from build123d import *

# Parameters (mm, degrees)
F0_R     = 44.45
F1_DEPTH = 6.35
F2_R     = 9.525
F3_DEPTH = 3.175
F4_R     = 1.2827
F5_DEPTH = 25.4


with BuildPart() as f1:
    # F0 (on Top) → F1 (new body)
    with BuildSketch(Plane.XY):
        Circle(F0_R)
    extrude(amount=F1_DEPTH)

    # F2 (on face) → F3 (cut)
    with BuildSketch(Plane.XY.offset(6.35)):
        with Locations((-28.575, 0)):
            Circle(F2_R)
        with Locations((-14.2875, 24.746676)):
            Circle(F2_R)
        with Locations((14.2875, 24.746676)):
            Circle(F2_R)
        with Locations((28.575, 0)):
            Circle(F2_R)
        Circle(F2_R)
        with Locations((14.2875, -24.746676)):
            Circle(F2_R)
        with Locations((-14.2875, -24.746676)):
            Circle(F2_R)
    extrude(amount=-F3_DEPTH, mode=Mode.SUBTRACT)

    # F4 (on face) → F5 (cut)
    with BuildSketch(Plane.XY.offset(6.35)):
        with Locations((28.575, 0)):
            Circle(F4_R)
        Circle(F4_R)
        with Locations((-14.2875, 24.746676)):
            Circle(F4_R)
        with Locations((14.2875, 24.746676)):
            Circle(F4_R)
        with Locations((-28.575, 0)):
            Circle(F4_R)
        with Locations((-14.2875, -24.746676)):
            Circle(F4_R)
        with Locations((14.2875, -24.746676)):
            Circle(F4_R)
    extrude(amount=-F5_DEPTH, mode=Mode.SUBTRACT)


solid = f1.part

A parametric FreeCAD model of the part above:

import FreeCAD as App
import Part
import Sketcher
from FreeCAD import Vector
Q = App.Units.Quantity

doc = App.newDocument("Part")
body = doc.addObject("PartDesign::Body", "Body")

sketch1 = body.newObject("Sketcher::SketchObject", "Sketch")
sketch1.AttachmentSupport = (doc.getObject("XY_Plane"), [""])
sketch1.MapMode = "FlatFace"
sketch1.addGeometry(Part.Circle(Vector(0, 0, 0), Vector(0, 0, 1), 44), False)
sketch1.addConstraint([
    Sketcher.Constraint("Coincident", 0, 3, -1, 1),
    Sketcher.Constraint("Diameter", 0, Q("3.5 in")),
])
pad1 = body.newObject("PartDesign::Pad", "Pad")
pad1.Profile = sketch1
pad1.Length = Q("0.25 in")

sketch2 = body.newObject("Sketcher::SketchObject", "Sketch001")
sketch2.AttachmentSupport = (doc.getObject("XY_Plane"), [""])
sketch2.MapMode = "FlatFace"
sketch2.AttachmentOffset = App.Placement(Vector(0, 0, 0.25 * 25.4), App.Rotation())
sketch2.addGeometry([
    Part.Circle(Vector(-29, 0, 0), Vector(0, 0, 1), 10),
    Part.Circle(Vector(-14, 25, 0), Vector(0, 0, 1), 10),
    Part.Circle(Vector(14, 25, 0), Vector(0, 0, 1), 10),
    Part.Circle(Vector(29, 0, 0), Vector(0, 0, 1), 10),
    Part.Circle(Vector(0, 0, 0), Vector(0, 0, 1), 10),
    Part.Circle(Vector(14, -25, 0), Vector(0, 0, 1), 10),
    Part.Circle(Vector(-14, -25, 0), Vector(0, 0, 1), 10),
], False)
sketch2.addConstraint([
    Sketcher.Constraint("Coincident", 4, 3, -1, 1),
    Sketcher.Constraint("Equal", 0, 1),
    Sketcher.Constraint("Equal", 1, 2),
    Sketcher.Constraint("Equal", 2, 3),
    Sketcher.Constraint("Equal", 3, 4),
    Sketcher.Constraint("Equal", 4, 5),
    Sketcher.Constraint("Equal", 5, 6),
    Sketcher.Constraint("Symmetric", 0, 3, 3, 3, -1, 1),
    Sketcher.Constraint("Symmetric", 1, 3, 5, 3, -1, 1),
    Sketcher.Constraint("Symmetric", 2, 3, 6, 3, -1, 1),
    Sketcher.Constraint("Symmetric", 1, 3, 2, 3, -2),
    Sketcher.Constraint("PointOnObject", 0, 3, -1),
    Sketcher.Constraint("Diameter", 0, Q("0.75 in")),
    Sketcher.Constraint("DistanceX", 0, 3, 3, 3, Q("2.25 in")),
    Sketcher.Constraint("DistanceX", 1, 3, -1, 1, Q("0.5625 in")),
    Sketcher.Constraint("DistanceY", -1, 1, 1, 3, Q("24.746676 mm")),
])
pocket1 = body.newObject("PartDesign::Pocket", "Pocket")
pocket1.Profile = sketch2
pocket1.Length = Q("0.125 in")

sketch3 = body.newObject("Sketcher::SketchObject", "Sketch002")
sketch3.AttachmentSupport = (doc.getObject("XY_Plane"), [""])
sketch3.MapMode = "FlatFace"
sketch3.AttachmentOffset = App.Placement(Vector(0, 0, 0.25 * 25.4), App.Rotation())
sketch3.addGeometry([
    Part.Circle(Vector(28.6, 0, 0), Vector(0, 0, 1), 1.3),
    Part.Circle(Vector(0, 0, 0), Vector(0, 0, 1), 1.3),
    Part.Circle(Vector(-14.3, 24.7, 0), Vector(0, 0, 1), 1.3),
    Part.Circle(Vector(14.3, 24.7, 0), Vector(0, 0, 1), 1.3),
    Part.Circle(Vector(-28.6, 0, 0), Vector(0, 0, 1), 1.3),
    Part.Circle(Vector(-14.3, -24.7, 0), Vector(0, 0, 1), 1.3),
    Part.Circle(Vector(14.3, -24.7, 0), Vector(0, 0, 1), 1.3),
], False)
sketch3.addConstraint([
    Sketcher.Constraint("Coincident", 1, 3, -1, 1),
    Sketcher.Constraint("Equal", 0, 1),
    Sketcher.Constraint("Equal", 1, 2),
    Sketcher.Constraint("Equal", 2, 3),
    Sketcher.Constraint("Equal", 3, 4),
    Sketcher.Constraint("Equal", 4, 5),
    Sketcher.Constraint("Equal", 5, 6),
    Sketcher.Constraint("Symmetric", 0, 3, 4, 3, -1, 1),
    Sketcher.Constraint("Symmetric", 3, 3, 5, 3, -1, 1),
    Sketcher.Constraint("Symmetric", 2, 3, 6, 3, -1, 1),
    Sketcher.Constraint("Symmetric", 2, 3, 3, 3, -2),
    Sketcher.Constraint("PointOnObject", 0, 3, -1),
    Sketcher.Constraint("Diameter", 0, Q("0.101 in")),
    Sketcher.Constraint("DistanceX", 4, 3, 0, 3, Q("2.25 in")),
    Sketcher.Constraint("DistanceX", 2, 3, -1, 1, Q("0.5625 in")),
    Sketcher.Constraint("DistanceY", -1, 1, 2, 3, Q("24.746676 mm")),
])
pocket2 = body.newObject("PartDesign::Pocket", "Pocket001")
pocket2.Profile = sketch3
pocket2.Length = Q("1 in")

doc.recompute()
